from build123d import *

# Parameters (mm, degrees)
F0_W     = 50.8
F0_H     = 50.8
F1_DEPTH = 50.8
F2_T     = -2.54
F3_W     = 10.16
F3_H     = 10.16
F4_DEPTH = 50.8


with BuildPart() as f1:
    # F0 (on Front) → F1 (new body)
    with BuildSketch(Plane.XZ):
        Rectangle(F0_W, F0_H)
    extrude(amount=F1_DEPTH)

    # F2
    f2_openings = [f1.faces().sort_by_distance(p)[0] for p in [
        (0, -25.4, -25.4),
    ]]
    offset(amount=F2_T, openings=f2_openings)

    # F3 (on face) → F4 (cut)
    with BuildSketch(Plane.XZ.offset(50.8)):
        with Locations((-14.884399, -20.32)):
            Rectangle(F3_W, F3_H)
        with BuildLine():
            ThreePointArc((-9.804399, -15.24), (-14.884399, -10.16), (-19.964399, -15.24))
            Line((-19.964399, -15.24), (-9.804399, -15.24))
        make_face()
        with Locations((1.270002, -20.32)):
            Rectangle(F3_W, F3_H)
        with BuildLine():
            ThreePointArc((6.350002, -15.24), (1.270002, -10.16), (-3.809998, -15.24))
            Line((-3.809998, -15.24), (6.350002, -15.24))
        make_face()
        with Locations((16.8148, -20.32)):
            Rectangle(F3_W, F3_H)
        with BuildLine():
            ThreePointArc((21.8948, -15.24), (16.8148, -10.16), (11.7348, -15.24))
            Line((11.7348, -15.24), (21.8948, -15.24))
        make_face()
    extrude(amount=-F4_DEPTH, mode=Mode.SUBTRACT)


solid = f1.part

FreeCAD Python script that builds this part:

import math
import FreeCAD as App
import Part
import Sketcher
Q = App.Units.Quantity


def faces_at(feature, points):
    """Names of the faces that lie closest to the given points."""
    faces = feature.Shape.Faces
    near = lambda p: min(range(len(faces)), key=lambda i: faces[i].distToShape(Part.Vertex(*p))[0])
    return sorted({f"Face{near(p) + 1}" for p in points})


def add_polygon(sketch, points):
    """Adds a closed chain of lines whose ends are joined by coincident constraints."""
    first, n = sketch.GeometryCount, len(points)
    for a, b in zip(points, points[1:] + points[:1]):
        sketch.addGeometry(Part.LineSegment(App.Vector(*a, 0), App.Vector(*b, 0)), False)
    for i in range(n):
        sketch.addConstraint(Sketcher.Constraint("Coincident", first + i, 2, first + (i + 1) % n, 1))

doc = App.newDocument("Part")
body = doc.addObject("PartDesign::Body", "Body")

sketch1 = body.newObject("Sketcher::SketchObject", "Sketch")
sketch1.AttachmentSupport = (doc.getObject("XZ_Plane"), [""])
sketch1.MapMode = "FlatFace"
add_polygon(sketch1, [(-25, 25), (-25, -25), (25, -25), (25, 25)])
sketch1.addConstraint(Sketcher.Constraint("Vertical", 0))
sketch1.addConstraint(Sketcher.Constraint("Horizontal", 1))
sketch1.addConstraint(Sketcher.Constraint("Vertical", 2))
sketch1.addConstraint(Sketcher.Constraint("Horizontal", 3))
sketch1.addConstraint(Sketcher.Constraint("Symmetric", 0, 2, 2, 2, -1, 1))
sketch1.addConstraint(Sketcher.Constraint("Equal", 3, 0))
sketch1.addConstraint(Sketcher.Constraint("DistanceX", 1, 1, 1, 2, Q("2 in")))
pad1 = body.newObject("PartDesign::Pad", "Pad")
pad1.Profile = sketch1
pad1.Length = Q("2 in")
doc.recompute()

thickness = body.newObject("PartDesign::Thickness", "Thickness")
thickness.Base = (pad1, faces_at(pad1, [(0, -25.4, -25.4)]))
thickness.Value = Q("0.1 in")
thickness.Reversed = True
thickness.Join = "Arc"

sketch2 = body.newObject("Sketcher::SketchObject", "Sketch001")
sketch2.AttachmentSupport = (doc.getObject("XZ_Plane"), [""])
sketch2.MapMode = "FlatFace"
sketch2.AttachmentOffset = App.Placement(App.Vector(0, 0, 2 * 25.4), App.Rotation())
sketch2.addGeometry(Part.LineSegment(App.Vector(-20, -15, 0), App.Vector(-20, -25, 0)), False)
sketch2.addGeometry(Part.LineSegment(App.Vector(-20, -25, 0), App.Vector(-10, -25, 0)), False)
sketch2.addGeometry(Part.LineSegment(App.Vector(-10, -25, 0), App.Vector(-10, -15, 0)), False)
sketch2.addGeometry(Part.ArcOfCircle(Part.Circle(App.Vector(-15, -15, 0), App.Vector(0, 0, 1), 5), math.radians(0), math.radians(180)), False)
sketch2.addGeometry(Part.LineSegment(App.Vector(-4, -15, 0), App.Vector(-4, -25, 0)), False)
sketch2.addGeometry(Part.LineSegment(App.Vector(-4, -25, 0), App.Vector(6, -25, 0)), False)
sketch2.addGeometry(Part.LineSegment(App.Vector(6, -25, 0), App.Vector(6, -15, 0)), False)
sketch2.addGeometry(Part.ArcOfCircle(Part.Circle(App.Vector(1, -15, 0), App.Vector(0, 0, 1), 5), math.radians(0), math.radians(180)), False)
sketch2.addGeometry(Part.LineSegment(App.Vector(12, -15, 0), App.Vector(12, -25, 0)), False)
sketch2.addGeometry(Part.LineSegment(App.Vector(12, -25, 0), App.Vector(22, -25, 0)), False)
sketch2.addGeometry(Part.LineSegment(App.Vector(22, -25, 0), App.Vector(22, -15, 0)), False)
sketch2.addGeometry(Part.ArcOfCircle(Part.Circle(App.Vector(17, -15, 0), App.Vector(0, 0, 1), 5), math.radians(0), math.radians(180)), False)
sketch2.addConstraint(Sketcher.Constraint("Coincident", 0, 2, 1, 1))
sketch2.addConstraint(Sketcher.Constraint("Coincident", 1, 2, 2, 1))
sketch2.addConstraint(Sketcher.Constraint("Tangent", 2, 2, 3, 1))
sketch2.addConstraint(Sketcher.Constraint("Tangent", 3, 2, 0, 1))
sketch2.addConstraint(Sketcher.Constraint("Coincident", 4, 2, 5, 1))
sketch2.addConstraint(Sketcher.Constraint("Coincident", 5, 2, 6, 1))
sketch2.addConstraint(Sketcher.Constraint("Tangent", 6, 2, 7, 1))
sketch2.addConstraint(Sketcher.Constraint("Tangent", 7, 2, 4, 1))
sketch2.addConstraint(Sketcher.Constraint("Coincident", 8, 2, 9, 1))
sketch2.addConstraint(Sketcher.Constraint("Coincident", 9, 2, 10, 1))
sketch2.addConstraint(Sketcher.Constraint("Tangent", 10, 2, 11, 1))
sketch2.addConstraint(Sketcher.Constraint("Tangent", 11, 2, 8, 1))
sketch2.addConstraint(Sketcher.Constraint("Vertical", 0))
sketch2.addConstraint(Sketcher.Constraint("Horizontal", 1))
sketch2.addConstraint(Sketcher.Constraint("Vertical", 2))
sketch2.addConstraint(Sketcher.Constraint("Vertical", 4))
sketch2.addConstraint(Sketcher.Constraint("Horizontal", 5))
sketch2.addConstraint(Sketcher.Constraint("Vertical", 6))
sketch2.addConstraint(Sketcher.Constraint("Vertical", 8))
sketch2.addConstraint(Sketcher.Constraint("Horizontal", 9))
sketch2.addConstraint(Sketcher.Constraint("Vertical", 10))
sketch2.addConstraint(Sketcher.Constraint("Equal", 3, 7))
sketch2.addConstraint(Sketcher.Constraint("Equal", 7, 11))
sketch2.addConstraint(Sketcher.Constraint("Horizontal", 3, 3, 7, 3))
sketch2.addConstraint(Sketcher.Constraint("Horizontal", 7, 3, 11, 3))
sketch2.addConstraint(Sketcher.Constraint("Horizontal", 1, 2, 4, 2))
sketch2.addConstraint(Sketcher.Constraint("Horizontal", 5, 2, 8, 2))
sketch2.addConstraint(Sketcher.Constraint("Equal", 9, 0))
sketch2.addConstraint(Sketcher.Constraint("Radius", 3, Q("0.2 in")))
sketch2.addConstraint(Sketcher.Constraint("DistanceY", 0, 2, -1, 1, Q("1 in")))
sketch2.addConstraint(Sketcher.Constraint("DistanceX", -1, 1, 7, 3, Q("0.0500001 in")))
sketch2.addConstraint(Sketcher.Constraint("DistanceX", 3, 3, -1, 1, Q("0.586 in")))
sketch2.addConstraint(Sketcher.Constraint("DistanceX", -1, 1, 11, 3, Q("0.662 in")))
pocket1 = body.newObject("PartDesign::Pocket", "Pocket")
pocket1.Profile = sketch2
pocket1.Length = Q("2 in")

doc.recompute()
